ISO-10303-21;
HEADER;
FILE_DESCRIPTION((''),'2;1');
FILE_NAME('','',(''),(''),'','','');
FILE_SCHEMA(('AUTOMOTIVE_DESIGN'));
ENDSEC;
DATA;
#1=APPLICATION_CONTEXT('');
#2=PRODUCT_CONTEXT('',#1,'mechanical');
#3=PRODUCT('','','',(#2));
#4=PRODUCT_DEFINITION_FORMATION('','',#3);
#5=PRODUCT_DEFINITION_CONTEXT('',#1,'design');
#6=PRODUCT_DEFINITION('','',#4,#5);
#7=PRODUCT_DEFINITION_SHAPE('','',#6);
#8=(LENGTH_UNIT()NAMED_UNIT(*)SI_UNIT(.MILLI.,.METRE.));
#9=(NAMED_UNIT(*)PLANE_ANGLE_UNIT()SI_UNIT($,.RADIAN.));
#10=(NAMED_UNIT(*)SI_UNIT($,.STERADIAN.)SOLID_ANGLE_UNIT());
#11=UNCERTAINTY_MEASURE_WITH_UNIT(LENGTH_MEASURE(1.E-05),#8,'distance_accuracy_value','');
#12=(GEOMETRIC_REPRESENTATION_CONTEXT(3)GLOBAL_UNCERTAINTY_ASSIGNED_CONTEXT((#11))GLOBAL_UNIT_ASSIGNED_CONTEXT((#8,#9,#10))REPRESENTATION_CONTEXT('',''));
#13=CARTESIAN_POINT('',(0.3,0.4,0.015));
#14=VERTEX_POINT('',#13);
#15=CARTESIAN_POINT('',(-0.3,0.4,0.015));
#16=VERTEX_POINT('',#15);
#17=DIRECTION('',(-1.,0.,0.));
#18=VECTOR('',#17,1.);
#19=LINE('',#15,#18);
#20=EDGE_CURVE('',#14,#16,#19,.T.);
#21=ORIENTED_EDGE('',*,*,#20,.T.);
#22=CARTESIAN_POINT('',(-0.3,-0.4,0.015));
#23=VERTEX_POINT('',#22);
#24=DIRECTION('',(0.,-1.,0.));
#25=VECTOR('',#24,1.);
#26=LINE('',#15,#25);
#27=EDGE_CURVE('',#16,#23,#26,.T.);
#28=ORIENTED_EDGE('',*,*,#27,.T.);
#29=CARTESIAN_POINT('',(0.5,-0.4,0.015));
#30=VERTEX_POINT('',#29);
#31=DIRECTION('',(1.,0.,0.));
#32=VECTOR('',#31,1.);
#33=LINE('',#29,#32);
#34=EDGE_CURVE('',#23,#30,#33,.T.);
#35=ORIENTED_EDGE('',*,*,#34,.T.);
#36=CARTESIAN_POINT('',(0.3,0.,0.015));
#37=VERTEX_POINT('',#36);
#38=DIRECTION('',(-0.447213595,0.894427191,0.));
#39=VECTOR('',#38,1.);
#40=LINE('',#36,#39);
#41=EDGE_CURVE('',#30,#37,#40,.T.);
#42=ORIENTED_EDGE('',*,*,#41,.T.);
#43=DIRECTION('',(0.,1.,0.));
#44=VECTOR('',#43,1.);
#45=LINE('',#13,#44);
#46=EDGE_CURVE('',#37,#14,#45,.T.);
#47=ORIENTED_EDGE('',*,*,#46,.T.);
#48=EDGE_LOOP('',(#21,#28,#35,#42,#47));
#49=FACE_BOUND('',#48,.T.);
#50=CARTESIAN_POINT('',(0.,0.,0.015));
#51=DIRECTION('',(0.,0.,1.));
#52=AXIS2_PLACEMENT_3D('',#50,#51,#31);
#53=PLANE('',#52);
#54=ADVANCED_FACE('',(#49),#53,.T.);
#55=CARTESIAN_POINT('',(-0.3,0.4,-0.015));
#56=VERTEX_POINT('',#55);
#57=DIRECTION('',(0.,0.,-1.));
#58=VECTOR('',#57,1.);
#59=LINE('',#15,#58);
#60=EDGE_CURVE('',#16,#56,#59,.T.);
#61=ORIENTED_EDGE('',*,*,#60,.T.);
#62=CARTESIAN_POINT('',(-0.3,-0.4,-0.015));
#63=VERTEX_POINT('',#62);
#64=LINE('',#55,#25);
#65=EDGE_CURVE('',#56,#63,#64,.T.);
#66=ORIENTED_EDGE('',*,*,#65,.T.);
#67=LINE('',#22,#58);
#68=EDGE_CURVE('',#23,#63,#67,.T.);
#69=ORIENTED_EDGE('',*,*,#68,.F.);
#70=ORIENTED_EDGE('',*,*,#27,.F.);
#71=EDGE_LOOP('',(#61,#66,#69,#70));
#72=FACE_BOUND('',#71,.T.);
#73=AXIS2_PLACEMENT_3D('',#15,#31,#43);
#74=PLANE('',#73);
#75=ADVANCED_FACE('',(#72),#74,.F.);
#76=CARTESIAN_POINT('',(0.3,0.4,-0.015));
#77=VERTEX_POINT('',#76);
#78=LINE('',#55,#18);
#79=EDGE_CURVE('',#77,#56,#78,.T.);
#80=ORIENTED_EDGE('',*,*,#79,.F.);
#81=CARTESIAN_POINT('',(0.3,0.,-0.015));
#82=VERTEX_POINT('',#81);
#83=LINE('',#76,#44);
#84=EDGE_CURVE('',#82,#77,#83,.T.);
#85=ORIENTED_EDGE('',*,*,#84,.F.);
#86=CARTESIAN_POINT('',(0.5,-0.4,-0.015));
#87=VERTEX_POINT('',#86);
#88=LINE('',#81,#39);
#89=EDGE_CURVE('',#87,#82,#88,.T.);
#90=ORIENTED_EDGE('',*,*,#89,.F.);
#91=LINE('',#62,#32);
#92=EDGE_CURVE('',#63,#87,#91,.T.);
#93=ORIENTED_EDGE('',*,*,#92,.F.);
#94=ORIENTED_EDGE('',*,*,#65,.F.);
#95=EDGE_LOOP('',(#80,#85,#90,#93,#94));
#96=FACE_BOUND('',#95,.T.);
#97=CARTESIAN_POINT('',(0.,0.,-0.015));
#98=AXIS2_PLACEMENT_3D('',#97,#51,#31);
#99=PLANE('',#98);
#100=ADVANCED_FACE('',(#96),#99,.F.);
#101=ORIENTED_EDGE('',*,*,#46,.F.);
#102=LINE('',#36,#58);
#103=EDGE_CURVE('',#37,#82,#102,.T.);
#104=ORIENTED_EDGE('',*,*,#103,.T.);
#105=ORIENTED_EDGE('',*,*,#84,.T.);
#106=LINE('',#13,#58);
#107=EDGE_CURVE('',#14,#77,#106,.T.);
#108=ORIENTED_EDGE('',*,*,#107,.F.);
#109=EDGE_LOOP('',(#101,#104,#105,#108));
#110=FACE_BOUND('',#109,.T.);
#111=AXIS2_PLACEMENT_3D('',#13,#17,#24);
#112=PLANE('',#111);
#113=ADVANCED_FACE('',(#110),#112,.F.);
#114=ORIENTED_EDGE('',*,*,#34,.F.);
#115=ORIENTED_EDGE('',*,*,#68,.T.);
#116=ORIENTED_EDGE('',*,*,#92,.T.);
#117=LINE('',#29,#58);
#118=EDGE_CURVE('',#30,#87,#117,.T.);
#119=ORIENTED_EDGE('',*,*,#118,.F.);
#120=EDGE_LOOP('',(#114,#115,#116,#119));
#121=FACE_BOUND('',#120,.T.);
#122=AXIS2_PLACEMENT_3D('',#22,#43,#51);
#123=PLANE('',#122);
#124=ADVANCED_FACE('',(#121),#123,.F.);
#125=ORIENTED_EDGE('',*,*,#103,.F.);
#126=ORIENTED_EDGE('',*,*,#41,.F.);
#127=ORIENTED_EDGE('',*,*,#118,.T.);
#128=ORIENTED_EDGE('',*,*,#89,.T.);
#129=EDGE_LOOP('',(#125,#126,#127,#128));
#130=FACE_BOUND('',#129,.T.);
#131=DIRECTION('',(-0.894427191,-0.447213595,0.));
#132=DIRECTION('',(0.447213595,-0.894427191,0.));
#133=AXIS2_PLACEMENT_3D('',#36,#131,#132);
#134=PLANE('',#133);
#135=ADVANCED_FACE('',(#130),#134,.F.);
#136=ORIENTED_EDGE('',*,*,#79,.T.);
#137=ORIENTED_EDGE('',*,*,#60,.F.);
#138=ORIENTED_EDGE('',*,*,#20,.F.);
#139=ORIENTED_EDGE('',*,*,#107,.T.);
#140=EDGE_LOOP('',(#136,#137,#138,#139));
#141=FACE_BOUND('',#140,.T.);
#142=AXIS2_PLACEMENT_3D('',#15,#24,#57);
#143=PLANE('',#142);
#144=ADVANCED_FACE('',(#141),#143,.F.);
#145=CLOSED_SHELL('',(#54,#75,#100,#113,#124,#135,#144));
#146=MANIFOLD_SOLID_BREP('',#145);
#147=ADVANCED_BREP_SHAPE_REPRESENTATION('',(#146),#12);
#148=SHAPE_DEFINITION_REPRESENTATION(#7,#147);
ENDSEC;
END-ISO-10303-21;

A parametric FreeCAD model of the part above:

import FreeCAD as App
import Part
import Sketcher
from FreeCAD import Vector
Q = App.Units.Quantity


def add_polygon(sketch, points):
    """Adds a closed chain of lines whose ends are joined by coincident constraints."""
    first, n = sketch.GeometryCount, len(points)
    for a, b in zip(points, points[1:] + points[:1]):
        sketch.addGeometry(Part.LineSegment(App.Vector(*a, 0), App.Vector(*b, 0)), False)
    for i in range(n):
        sketch.addConstraint(Sketcher.Constraint("Coincident", first + i, 2, first + (i + 1) % n, 1))

doc = App.newDocument("Part")
body = doc.addObject("PartDesign::Body", "Body")

# Sketch on XY plane
sketch1 = doc.addObject("Sketcher::SketchObject", "Sketch")
body.addObject(sketch1)
sketch1.AttachmentSupport = (doc.XY_Plane, [""])
sketch1.MapMode = "FlatFace"
add_polygon(sketch1, [(0.5, -0.4), (0.3, 0), (0.3, 0.4), (-0.3, 0.4), (-0.3, -0.4)])  # lines 0-4
sketch1.addConstraint(Sketcher.Constraint("Vertical", 1))
sketch1.addConstraint(Sketcher.Constraint("Horizontal", 2))
sketch1.addConstraint(Sketcher.Constraint("Vertical", 3))
sketch1.addConstraint(Sketcher.Constraint("Horizontal", 4))
sketch1.addConstraint(Sketcher.Constraint("Symmetric", 1, 2, 3, 2, -1, 1))
sketch1.addConstraint(Sketcher.Constraint("PointOnObject", 0, 2, -1))
sketch1.addConstraint(Sketcher.Constraint("Equal", 4, 3))
sketch1.addConstraint(Sketcher.Constraint("DistanceX", 2, 2, 2, 1, Q("0.6 mm")))
sketch1.addConstraint(Sketcher.Constraint("DistanceX", 4, 1, 4, 2, Q("0.8 mm")))
pad1 = doc.addObject("PartDesign::Pad", "Pad")
body.addObject(pad1)
pad1.Profile = sketch1
pad1.Length = 0.03
pad1.Midplane = True

doc.recompute()
